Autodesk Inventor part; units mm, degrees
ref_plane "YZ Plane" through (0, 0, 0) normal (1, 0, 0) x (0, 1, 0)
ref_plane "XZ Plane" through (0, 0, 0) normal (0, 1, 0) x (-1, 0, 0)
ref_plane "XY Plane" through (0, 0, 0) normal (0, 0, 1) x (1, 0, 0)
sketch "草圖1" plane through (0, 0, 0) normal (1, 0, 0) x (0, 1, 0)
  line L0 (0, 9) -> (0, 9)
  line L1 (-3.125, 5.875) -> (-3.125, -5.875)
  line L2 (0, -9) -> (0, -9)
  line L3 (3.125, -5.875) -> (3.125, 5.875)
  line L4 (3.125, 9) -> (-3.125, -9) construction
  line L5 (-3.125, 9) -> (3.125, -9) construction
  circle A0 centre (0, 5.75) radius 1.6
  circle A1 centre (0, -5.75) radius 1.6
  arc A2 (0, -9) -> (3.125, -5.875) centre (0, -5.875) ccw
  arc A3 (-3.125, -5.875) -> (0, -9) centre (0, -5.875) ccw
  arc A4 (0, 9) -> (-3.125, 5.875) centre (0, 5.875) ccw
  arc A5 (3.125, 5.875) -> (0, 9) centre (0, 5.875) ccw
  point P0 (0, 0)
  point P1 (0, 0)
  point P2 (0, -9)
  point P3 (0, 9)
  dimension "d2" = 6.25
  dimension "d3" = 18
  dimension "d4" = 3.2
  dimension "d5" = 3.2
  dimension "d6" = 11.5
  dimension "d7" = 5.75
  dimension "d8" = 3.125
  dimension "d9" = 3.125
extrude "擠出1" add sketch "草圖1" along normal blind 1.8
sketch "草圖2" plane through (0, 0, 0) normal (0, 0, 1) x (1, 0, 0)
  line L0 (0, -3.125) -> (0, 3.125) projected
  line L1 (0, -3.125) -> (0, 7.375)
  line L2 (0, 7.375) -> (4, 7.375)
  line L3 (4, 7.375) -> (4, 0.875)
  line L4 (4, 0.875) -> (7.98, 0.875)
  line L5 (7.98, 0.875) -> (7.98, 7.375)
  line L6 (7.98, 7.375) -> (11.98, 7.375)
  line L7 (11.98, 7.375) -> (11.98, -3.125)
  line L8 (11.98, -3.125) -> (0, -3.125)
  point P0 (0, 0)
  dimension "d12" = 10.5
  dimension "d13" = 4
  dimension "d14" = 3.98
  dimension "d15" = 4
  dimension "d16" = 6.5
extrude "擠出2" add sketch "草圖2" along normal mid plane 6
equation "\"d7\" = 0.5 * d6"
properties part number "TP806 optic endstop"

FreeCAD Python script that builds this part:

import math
import FreeCAD as App
import Part
import Sketcher
from FreeCAD import Vector

doc = App.newDocument("Part")
body = doc.addObject("PartDesign::Body", "Body")

# Sketch on YZ plane
sketch1 = body.newObject("Sketcher::SketchObject", "Sketch")
sketch1.AttachmentSupport = (doc.getObject("YZ_Plane"), [""])
sketch1.MapMode = "FlatFace"
sketch1.addGeometry(Part.ArcOfCircle(Part.Circle(Vector(0, 5.9, 0), Vector(0, 0, 1), 3.1), math.radians(0), math.radians(180)), False)
sketch1.addGeometry(Part.LineSegment(Vector(-3.1, 5.9, 0), Vector(-3.1, -5.9, 0)), False)
sketch1.addGeometry(Part.ArcOfCircle(Part.Circle(Vector(0, -5.9, 0), Vector(0, 0, 1), 3.1), math.radians(180), math.radians(360)), False)
sketch1.addGeometry(Part.LineSegment(Vector(3.1, -5.9, 0), Vector(3.1, 5.9, 0)), False)
sketch1.addGeometry(Part.Circle(Vector(0, -5.8, 0), Vector(0, 0, 1), 1.6), False)
sketch1.addGeometry(Part.Circle(Vector(0, 5.8, 0), Vector(0, 0, 1), 1.6), False)
sketch1.addConstraint(Sketcher.Constraint("Tangent", 0, 2, 1, 1))
sketch1.addConstraint(Sketcher.Constraint("Tangent", 1, 2, 2, 1))
sketch1.addConstraint(Sketcher.Constraint("Tangent", 2, 2, 3, 1))
sketch1.addConstraint(Sketcher.Constraint("Tangent", 3, 2, 0, 1))
sketch1.addConstraint(Sketcher.Constraint("Vertical", 1))
sketch1.addConstraint(Sketcher.Constraint("Vertical", 3))
sketch1.addConstraint(Sketcher.Constraint("Equal", 4, 5))
sketch1.addConstraint(Sketcher.Constraint("Symmetric", 0, 3, 2, 3, -1, 1))
sketch1.addConstraint(Sketcher.Constraint("Symmetric", 4, 3, 5, 3, -1, 1))
sketch1.addConstraint(Sketcher.Constraint("PointOnObject", 4, 3, -2))
sketch1.addConstraint(Sketcher.Constraint("Diameter", 4, 3.2))
sketch1.addConstraint(Sketcher.Constraint("Radius", 0, 3.125))
sketch1.addConstraint(Sketcher.Constraint("DistanceY", 4, 3, 5, 3, 11.5))
sketch1.addConstraint(Sketcher.Constraint("DistanceY", 1, 2, 1, 1, 11.75))
pad1 = body.newObject("PartDesign::Pad", "Pad")
pad1.Profile = sketch1
pad1.Length = 1.8

# Sketch on XY plane
sketch2 = body.newObject("Sketcher::SketchObject", "Sketch001")
sketch2.AttachmentSupport = (doc.getObject("XY_Plane"), [""])
sketch2.MapMode = "FlatFace"
sketch2.addGeometry(Part.LineSegment(Vector(0, 7.4, 0), Vector(0, -3.1, 0)), False)
sketch2.addGeometry(Part.LineSegment(Vector(0, -3.1, 0), Vector(12, -3.1, 0)), False)
sketch2.addGeometry(Part.LineSegment(Vector(12, -3.1, 0), Vector(12, 7.4, 0)), False)
sketch2.addGeometry(Part.LineSegment(Vector(12, 7.4, 0), Vector(8, 7.4, 0)), False)
sketch2.addGeometry(Part.LineSegment(Vector(8, 7.4, 0), Vector(8, 0.9, 0)), False)
sketch2.addGeometry(Part.LineSegment(Vector(8, 0.9, 0), Vector(4, 0.9, 0)), False)
sketch2.addGeometry(Part.LineSegment(Vector(4, 0.9, 0), Vector(4, 7.4, 0)), False)
sketch2.addGeometry(Part.LineSegment(Vector(4, 7.4, 0), Vector(0, 7.4, 0)), False)
sketch2.addConstraint(Sketcher.Constraint("Coincident", 0, 2, 1, 1))
sketch2.addConstraint(Sketcher.Constraint("Coincident", 1, 2, 2, 1))
sketch2.addConstraint(Sketcher.Constraint("Coincident", 2, 2, 3, 1))
sketch2.addConstraint(Sketcher.Constraint("Coincident", 3, 2, 4, 1))
sketch2.addConstraint(Sketcher.Constraint("Coincident", 4, 2, 5, 1))
sketch2.addConstraint(Sketcher.Constraint("Coincident", 5, 2, 6, 1))
sketch2.addConstraint(Sketcher.Constraint("Coincident", 6, 2, 7, 1))
sketch2.addConstraint(Sketcher.Constraint("Coincident", 7, 2, 0, 1))
sketch2.addConstraint(Sketcher.Constraint("Vertical", 0))
sketch2.addConstraint(Sketcher.Constraint("Horizontal", 1))
sketch2.addConstraint(Sketcher.Constraint("Vertical", 2))
sketch2.addConstraint(Sketcher.Constraint("Horizontal", 3))
sketch2.addConstraint(Sketcher.Constraint("Vertical", 4))
sketch2.addConstraint(Sketcher.Constraint("Horizontal", 5))
sketch2.addConstraint(Sketcher.Constraint("Vertical", 6))
sketch2.addConstraint(Sketcher.Constraint("Horizontal", 7))
sketch2.addConstraint(Sketcher.Constraint("PointOnObject", 0, 2, -2))
sketch2.addConstraint(Sketcher.Constraint("Horizontal", 3, 2, 6, 2))
sketch2.addConstraint(Sketcher.Constraint("Equal", 3, 7))
sketch2.addConstraint(Sketcher.Constraint("DistanceX", 3, 2, 3, 1, 4.0))
sketch2.addConstraint(Sketcher.Constraint("DistanceY", 0, 2, 0, 1, 10.5))
sketch2.addConstraint(Sketcher.Constraint("DistanceY", 4, 2, 4, 1, 6.5))
sketch2.addConstraint(Sketcher.Constraint("DistanceX", 5, 2, 5, 1, 3.98))
sketch2.addConstraint(Sketcher.Constraint("DistanceY", 0, 2, -1, 1, 3.125))
pad2 = body.newObject("PartDesign::Pad", "Pad001")
pad2.Profile = sketch2
pad2.Length = 6
pad2.Midplane = True

doc.recompute()
